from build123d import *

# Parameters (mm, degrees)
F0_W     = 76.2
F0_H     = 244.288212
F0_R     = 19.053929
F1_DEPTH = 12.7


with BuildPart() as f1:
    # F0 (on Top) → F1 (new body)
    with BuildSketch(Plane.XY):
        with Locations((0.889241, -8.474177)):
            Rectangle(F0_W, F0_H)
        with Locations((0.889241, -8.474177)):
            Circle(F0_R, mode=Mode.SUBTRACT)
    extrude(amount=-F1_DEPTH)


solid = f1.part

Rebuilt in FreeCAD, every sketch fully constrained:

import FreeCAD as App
import Part
import Sketcher

V = App.Vector
Q = App.Units.Quantity


def add_polygon(sketch, points):
    """Adds a closed chain of lines whose ends are joined by coincident constraints."""
    first, n = sketch.GeometryCount, len(points)
    for a, b in zip(points, points[1:] + points[:1]):
        sketch.addGeometry(Part.LineSegment(App.Vector(*a, 0), App.Vector(*b, 0)), False)
    for i in range(n):
        sketch.addConstraint(Sketcher.Constraint("Coincident", first + i, 2, first + (i + 1) % n, 1))

doc = App.newDocument("Part")
body = doc.addObject("PartDesign::Body", "Body")

sketch1 = doc.addObject("Sketcher::SketchObject", "Sketch")
body.addObject(sketch1)
sketch1.AttachmentSupport = (doc.XY_Plane, [""])
sketch1.MapMode = "FlatFace"
add_polygon(sketch1, [(-37, 114), (-37, -131), (39, -131), (39, 114)])
sketch1.addGeometry(Part.Circle(V(1, -8, 0), V(0, 0, 1), 19), False)
sketch1.addConstraint(Sketcher.Constraint("Vertical", 0))
sketch1.addConstraint(Sketcher.Constraint("Horizontal", 1))
sketch1.addConstraint(Sketcher.Constraint("Vertical", 2))
sketch1.addConstraint(Sketcher.Constraint("Horizontal", 3))
sketch1.addConstraint(Sketcher.Constraint("DistanceX", 1, 1, 1, 2, Q("3 in")))
sketch1.addConstraint(Sketcher.Constraint("DistanceX", 0, 2, 4, 3, Q("1.5 in")))
sketch1.addConstraint(Sketcher.Constraint("Diameter", 4, Q("38.107858 mm")))
sketch1.addConstraint(Sketcher.Constraint("DistanceY", 0, 2, 0, 1, Q("244.288212 mm")))
sketch1.addConstraint(Sketcher.Constraint("DistanceX", -1, 1, 4, 3, Q("0.889241 mm")))
sketch1.addConstraint(Sketcher.Constraint("DistanceY", -1, 1, 2, 2, Q("113.669929 mm")))
sketch1.addConstraint(Sketcher.Constraint("DistanceY", 4, 3, -1, 1, Q("8.474177 mm")))
pad1 = doc.addObject("PartDesign::Pad", "Pad")
body.addObject(pad1)
pad1.Profile = sketch1
pad1.Length = Q("0.5 in")
pad1.Reversed = True

doc.recompute()
